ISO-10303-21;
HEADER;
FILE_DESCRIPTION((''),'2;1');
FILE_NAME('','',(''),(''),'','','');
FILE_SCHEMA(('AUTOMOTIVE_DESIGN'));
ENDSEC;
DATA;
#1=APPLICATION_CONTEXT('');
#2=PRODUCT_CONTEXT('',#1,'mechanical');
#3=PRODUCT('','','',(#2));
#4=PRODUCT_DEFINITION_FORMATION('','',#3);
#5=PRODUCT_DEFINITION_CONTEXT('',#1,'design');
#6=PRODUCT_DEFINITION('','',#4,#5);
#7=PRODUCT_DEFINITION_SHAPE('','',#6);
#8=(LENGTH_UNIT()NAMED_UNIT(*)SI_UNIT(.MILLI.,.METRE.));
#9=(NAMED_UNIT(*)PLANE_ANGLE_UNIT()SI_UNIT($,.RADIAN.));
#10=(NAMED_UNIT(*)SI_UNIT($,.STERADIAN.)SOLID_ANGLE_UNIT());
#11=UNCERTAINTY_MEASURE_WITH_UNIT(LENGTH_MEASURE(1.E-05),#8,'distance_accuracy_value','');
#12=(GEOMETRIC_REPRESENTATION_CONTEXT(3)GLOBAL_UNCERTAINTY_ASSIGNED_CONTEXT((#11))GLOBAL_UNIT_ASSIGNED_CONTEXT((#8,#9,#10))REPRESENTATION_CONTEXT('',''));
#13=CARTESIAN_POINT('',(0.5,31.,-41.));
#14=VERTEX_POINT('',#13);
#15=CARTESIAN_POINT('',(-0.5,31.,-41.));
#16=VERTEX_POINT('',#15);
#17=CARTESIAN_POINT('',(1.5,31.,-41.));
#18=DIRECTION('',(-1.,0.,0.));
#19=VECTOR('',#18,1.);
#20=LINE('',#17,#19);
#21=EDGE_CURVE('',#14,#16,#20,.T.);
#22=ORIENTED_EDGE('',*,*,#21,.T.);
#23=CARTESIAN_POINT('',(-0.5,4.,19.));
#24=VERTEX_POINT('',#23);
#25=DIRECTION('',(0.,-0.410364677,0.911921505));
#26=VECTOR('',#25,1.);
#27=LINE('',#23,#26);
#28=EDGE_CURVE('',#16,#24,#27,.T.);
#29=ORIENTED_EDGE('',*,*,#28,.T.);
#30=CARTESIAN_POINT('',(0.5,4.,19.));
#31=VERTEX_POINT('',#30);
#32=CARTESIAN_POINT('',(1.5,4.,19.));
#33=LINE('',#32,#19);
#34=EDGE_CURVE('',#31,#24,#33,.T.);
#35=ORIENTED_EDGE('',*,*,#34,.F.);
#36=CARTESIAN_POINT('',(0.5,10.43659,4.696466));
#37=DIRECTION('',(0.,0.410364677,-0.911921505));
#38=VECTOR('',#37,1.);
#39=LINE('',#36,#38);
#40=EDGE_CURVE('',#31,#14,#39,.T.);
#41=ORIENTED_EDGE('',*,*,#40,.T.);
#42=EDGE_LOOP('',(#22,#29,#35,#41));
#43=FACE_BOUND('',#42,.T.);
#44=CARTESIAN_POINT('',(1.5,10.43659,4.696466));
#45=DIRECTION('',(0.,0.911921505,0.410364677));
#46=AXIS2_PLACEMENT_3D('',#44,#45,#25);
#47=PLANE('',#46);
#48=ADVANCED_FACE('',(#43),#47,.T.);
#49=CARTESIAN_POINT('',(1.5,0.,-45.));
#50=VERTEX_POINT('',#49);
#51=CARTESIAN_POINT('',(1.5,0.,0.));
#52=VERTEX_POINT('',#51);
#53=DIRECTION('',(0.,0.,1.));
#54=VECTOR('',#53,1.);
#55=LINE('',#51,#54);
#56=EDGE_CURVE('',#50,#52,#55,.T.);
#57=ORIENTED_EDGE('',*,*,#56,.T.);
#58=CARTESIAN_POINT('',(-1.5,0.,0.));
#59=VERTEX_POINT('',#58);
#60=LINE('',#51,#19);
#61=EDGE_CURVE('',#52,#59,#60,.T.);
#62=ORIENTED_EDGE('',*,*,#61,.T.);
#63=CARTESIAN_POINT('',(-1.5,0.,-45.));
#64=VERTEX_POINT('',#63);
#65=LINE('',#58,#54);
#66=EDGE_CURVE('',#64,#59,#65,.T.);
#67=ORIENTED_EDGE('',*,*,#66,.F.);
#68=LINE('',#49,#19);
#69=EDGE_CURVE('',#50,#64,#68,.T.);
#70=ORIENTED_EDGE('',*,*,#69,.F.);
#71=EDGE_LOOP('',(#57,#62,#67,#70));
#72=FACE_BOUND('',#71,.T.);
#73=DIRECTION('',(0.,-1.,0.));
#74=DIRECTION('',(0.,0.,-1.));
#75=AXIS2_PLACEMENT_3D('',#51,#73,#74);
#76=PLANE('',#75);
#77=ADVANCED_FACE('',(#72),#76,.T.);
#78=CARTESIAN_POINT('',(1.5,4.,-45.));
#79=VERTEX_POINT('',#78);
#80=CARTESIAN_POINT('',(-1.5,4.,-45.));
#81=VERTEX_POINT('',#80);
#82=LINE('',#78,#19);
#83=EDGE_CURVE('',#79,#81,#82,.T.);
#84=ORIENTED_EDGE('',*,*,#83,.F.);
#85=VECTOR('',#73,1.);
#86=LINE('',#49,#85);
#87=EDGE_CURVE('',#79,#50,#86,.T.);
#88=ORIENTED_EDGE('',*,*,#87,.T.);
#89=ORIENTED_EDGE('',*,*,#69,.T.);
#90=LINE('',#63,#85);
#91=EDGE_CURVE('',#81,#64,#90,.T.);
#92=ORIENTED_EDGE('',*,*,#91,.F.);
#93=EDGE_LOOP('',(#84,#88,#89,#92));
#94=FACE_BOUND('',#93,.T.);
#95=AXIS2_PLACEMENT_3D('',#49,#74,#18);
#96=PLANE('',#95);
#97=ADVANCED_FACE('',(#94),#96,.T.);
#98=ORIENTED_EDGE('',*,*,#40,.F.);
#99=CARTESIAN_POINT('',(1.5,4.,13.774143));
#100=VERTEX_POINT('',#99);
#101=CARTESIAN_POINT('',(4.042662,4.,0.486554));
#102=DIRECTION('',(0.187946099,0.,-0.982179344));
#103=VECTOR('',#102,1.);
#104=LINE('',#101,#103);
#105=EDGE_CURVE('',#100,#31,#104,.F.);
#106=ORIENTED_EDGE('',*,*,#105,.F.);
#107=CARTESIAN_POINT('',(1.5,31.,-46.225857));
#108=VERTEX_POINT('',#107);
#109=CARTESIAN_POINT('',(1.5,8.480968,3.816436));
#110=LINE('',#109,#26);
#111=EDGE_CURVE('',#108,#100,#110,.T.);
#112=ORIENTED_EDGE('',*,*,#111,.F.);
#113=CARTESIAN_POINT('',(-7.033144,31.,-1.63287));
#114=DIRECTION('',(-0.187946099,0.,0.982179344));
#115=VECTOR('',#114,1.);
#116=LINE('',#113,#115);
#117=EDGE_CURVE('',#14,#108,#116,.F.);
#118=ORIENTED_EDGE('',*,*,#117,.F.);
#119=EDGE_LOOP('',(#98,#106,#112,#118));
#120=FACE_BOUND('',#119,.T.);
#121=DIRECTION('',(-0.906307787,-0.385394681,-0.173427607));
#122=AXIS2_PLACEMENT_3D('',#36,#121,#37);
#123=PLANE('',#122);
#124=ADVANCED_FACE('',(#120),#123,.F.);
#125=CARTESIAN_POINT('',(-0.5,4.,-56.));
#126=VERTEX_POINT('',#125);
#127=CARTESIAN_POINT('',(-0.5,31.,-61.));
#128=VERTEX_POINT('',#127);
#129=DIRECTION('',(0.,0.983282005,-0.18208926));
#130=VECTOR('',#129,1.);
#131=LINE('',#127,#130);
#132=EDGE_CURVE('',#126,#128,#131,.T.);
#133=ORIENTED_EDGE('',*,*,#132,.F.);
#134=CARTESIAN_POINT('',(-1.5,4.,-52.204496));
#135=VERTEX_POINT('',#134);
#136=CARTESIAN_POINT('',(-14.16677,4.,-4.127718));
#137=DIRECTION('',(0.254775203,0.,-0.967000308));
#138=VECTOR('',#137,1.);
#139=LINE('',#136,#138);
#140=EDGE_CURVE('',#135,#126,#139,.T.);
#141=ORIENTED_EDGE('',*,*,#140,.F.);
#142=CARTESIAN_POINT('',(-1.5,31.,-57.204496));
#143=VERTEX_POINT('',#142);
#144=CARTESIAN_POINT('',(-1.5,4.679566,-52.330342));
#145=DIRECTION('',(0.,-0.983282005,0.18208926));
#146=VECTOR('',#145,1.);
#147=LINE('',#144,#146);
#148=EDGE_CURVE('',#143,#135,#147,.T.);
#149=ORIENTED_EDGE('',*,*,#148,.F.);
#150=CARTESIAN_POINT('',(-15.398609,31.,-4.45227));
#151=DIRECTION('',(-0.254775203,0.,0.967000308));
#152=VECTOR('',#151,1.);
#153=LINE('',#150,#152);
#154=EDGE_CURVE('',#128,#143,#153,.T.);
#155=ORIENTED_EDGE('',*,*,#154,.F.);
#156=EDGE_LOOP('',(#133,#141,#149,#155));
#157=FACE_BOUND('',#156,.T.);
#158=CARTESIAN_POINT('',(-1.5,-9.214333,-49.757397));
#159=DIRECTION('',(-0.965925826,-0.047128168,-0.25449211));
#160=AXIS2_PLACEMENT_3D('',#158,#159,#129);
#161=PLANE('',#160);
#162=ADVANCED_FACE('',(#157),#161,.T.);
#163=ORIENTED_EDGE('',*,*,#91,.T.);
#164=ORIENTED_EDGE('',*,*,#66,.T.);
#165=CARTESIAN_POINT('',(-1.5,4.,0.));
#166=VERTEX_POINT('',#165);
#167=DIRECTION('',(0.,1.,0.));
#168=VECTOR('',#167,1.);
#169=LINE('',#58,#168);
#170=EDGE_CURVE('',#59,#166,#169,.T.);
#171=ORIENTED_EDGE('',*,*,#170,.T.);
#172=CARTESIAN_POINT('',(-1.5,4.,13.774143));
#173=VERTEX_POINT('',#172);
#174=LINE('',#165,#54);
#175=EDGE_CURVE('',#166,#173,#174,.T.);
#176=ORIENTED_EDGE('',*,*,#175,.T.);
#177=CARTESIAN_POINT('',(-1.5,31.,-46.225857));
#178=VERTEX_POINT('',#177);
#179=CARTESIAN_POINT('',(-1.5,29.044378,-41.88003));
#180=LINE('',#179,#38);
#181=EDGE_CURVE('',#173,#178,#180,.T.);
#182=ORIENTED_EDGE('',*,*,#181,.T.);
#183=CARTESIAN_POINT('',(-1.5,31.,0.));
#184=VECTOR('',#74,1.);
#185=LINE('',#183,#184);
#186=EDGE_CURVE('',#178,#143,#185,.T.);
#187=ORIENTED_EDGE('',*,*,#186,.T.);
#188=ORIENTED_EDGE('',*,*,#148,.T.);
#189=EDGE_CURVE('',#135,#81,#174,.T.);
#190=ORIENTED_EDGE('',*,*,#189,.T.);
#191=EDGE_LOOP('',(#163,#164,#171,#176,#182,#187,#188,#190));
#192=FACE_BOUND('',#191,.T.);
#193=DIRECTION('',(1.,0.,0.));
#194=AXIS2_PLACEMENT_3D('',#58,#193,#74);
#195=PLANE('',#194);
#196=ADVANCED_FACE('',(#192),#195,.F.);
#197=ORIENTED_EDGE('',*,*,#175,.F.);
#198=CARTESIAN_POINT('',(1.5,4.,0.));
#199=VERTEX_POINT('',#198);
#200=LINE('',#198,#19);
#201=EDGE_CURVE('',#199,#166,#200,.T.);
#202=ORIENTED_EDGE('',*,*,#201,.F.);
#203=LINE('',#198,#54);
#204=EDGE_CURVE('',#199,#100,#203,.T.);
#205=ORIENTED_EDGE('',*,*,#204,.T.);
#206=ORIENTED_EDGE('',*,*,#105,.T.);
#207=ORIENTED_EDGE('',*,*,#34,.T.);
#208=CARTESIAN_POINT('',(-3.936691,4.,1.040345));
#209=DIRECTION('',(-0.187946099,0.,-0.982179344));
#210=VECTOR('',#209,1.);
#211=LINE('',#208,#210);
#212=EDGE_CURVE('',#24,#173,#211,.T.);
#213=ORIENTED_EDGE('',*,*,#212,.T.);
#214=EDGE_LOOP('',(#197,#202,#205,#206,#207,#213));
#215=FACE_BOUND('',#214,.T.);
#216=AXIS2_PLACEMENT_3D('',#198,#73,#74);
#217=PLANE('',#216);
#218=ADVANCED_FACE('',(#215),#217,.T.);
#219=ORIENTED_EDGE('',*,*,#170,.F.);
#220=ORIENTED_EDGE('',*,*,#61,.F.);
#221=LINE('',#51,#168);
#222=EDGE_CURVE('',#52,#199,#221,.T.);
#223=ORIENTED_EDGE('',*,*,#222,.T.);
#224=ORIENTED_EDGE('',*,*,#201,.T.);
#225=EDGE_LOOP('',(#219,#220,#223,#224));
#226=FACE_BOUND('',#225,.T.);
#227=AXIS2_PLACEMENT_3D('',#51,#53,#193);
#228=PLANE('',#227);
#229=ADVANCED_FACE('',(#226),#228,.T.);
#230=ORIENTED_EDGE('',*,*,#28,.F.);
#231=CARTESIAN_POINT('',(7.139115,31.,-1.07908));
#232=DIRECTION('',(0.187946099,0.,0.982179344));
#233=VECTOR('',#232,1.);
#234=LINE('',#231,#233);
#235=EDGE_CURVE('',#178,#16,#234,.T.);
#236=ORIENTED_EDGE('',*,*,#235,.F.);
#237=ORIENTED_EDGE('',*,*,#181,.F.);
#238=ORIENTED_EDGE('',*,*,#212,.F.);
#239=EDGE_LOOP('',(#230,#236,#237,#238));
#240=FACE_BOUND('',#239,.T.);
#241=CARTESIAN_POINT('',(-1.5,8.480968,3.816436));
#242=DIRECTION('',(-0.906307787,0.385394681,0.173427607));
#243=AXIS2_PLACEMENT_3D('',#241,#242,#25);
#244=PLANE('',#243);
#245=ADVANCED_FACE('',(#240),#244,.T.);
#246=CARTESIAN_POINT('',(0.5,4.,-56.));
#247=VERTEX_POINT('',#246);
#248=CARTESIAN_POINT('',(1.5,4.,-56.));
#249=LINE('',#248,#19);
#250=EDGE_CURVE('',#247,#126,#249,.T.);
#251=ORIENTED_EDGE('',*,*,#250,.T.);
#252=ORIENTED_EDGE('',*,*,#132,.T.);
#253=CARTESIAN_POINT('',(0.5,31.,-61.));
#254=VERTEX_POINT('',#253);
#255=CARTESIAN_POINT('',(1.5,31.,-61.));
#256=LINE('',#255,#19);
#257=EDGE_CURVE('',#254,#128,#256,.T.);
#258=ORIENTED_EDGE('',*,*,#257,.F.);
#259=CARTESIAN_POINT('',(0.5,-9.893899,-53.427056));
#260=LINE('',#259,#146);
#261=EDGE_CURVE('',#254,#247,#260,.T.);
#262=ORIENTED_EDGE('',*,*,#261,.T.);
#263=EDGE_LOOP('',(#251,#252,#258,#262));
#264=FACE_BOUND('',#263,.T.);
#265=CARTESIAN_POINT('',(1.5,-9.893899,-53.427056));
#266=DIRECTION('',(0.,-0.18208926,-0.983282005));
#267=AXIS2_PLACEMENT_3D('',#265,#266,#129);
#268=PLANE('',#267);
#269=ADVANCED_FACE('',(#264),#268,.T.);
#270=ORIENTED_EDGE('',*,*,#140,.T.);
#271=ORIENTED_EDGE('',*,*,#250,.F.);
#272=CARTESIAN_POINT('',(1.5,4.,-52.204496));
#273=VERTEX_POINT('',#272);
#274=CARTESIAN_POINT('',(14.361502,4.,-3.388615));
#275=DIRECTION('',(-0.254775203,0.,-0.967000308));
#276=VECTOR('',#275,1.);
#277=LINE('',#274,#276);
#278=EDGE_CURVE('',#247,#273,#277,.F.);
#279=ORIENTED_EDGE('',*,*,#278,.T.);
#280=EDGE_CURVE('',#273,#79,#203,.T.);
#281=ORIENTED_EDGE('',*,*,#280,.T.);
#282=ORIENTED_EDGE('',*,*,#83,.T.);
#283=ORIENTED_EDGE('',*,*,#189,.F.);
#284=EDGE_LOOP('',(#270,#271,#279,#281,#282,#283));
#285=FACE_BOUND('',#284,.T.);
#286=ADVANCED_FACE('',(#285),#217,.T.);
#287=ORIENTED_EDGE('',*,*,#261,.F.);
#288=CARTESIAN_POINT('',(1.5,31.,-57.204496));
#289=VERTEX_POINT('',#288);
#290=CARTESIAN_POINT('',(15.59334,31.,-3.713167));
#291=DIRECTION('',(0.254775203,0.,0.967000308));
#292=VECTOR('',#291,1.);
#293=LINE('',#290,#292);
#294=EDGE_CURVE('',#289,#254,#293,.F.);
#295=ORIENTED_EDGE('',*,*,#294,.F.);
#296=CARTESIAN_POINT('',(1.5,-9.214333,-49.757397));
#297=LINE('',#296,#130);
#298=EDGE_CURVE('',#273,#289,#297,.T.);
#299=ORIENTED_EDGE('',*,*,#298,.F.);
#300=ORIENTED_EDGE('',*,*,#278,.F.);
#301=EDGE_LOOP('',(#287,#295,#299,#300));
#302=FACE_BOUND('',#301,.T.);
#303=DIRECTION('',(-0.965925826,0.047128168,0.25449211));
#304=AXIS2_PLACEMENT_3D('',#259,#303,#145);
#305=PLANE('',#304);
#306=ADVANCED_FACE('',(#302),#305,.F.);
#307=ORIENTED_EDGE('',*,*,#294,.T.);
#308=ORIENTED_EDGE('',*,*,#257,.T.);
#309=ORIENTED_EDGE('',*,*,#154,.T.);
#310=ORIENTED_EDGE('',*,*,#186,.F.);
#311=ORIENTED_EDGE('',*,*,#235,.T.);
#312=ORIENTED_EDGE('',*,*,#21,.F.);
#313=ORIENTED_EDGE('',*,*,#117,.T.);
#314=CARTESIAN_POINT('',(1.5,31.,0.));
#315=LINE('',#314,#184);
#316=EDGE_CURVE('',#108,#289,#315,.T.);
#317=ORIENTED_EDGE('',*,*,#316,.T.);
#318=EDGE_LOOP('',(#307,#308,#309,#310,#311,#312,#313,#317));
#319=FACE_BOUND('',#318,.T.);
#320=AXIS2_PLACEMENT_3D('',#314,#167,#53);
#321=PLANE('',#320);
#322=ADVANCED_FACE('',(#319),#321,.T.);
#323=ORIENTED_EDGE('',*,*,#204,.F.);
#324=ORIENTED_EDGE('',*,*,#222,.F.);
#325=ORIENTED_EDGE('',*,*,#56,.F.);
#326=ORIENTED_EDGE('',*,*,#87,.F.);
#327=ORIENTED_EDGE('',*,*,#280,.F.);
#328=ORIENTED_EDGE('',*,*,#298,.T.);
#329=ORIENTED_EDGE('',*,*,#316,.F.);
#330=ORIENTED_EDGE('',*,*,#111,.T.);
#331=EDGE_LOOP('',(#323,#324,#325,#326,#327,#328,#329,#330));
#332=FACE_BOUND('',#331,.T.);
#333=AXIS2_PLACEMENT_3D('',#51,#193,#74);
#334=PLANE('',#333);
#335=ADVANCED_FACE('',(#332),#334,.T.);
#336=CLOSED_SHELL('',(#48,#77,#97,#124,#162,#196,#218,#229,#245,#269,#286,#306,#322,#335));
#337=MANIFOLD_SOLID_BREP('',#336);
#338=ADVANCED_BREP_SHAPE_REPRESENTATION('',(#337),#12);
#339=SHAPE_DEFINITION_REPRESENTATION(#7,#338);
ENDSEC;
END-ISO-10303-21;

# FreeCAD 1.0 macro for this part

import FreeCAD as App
import Part
import Sketcher
from FreeCAD import Vector


def edges_at(feature, points):
    """Names of the edges that pass closest to the given points."""
    edges = feature.Shape.Edges
    near = lambda p: min(range(len(edges)), key=lambda i: edges[i].distToShape(Part.Vertex(*p))[0])
    return sorted({f"Edge{near(p) + 1}" for p in points})


def add_polygon(sketch, points):
    """Adds a closed chain of lines whose ends are joined by coincident constraints."""
    first, n = sketch.GeometryCount, len(points)
    for a, b in zip(points, points[1:] + points[:1]):
        sketch.addGeometry(Part.LineSegment(App.Vector(*a, 0), App.Vector(*b, 0)), False)
    for i in range(n):
        sketch.addConstraint(Sketcher.Constraint("Coincident", first + i, 2, first + (i + 1) % n, 1))

doc = App.newDocument("Part")
params = doc.addObject("Spreadsheet::Sheet", "Params")
for row, (alias, value) in enumerate([
    ("sketch1_width", "4 mm"),
    ("sketch1_height", "45 mm"),
    ("sketch1_height2", "11 mm"),
    ("sketch1_height3", "20 mm"),
    ("sketch1_height4", "19 mm"),
    ("pad1_length", "3 mm"),
    ("chamfer_size", "1 mm"),
    ("chamfer_size2", "3.732051 mm"),
    ("chamfer2_size", "1 mm"),
    ("chamfer2_size2", "2.144507 mm"),
], start=1):
    params.set(f"A{row}", alias)
    params.set(f"B{row}", "=" + value)
    params.setAlias(f"B{row}", alias)

body = doc.addObject("PartDesign::Body", "Body")

sketch1 = doc.addObject("Sketcher::SketchObject", "Sketch")
body.addObject(sketch1)
sketch1.AttachmentSupport = (doc.YZ_Plane, [""])
sketch1.MapMode = "FlatFace"
add_polygon(sketch1, [(0, 0), (0, -45), (4, -45), (4, -56), (31, -61), (31, -41), (4, 19), (4, 0)])
sketch1.addConstraint([
    Sketcher.Constraint("Vertical", 0),
    Sketcher.Constraint("Horizontal", 1),
    Sketcher.Constraint("Vertical", 2),
    Sketcher.Constraint("Vertical", 4),
    Sketcher.Constraint("Vertical", 6),
    Sketcher.Constraint("Horizontal", 7),
    Sketcher.Constraint("Coincident", 7, 2, -1, 1),
    Sketcher.Constraint("Vertical", 2, 2, 5, 2),
    Sketcher.Constraint("DistanceX", 1, 1, 1, 2, 4.0),
    Sketcher.Constraint("DistanceY", 0, 2, 0, 1, 45.0),
    Sketcher.Constraint("DistanceY", 2, 2, 2, 1, 11.0),
    Sketcher.Constraint("DistanceY", 4, 1, 4, 2, 20.0),
    Sketcher.Constraint("DistanceY", 6, 2, 6, 1, 19.0),
    Sketcher.Constraint("DistanceX", -1, 1, 3, 2, 31.0),
    Sketcher.Constraint("DistanceY", 3, 2, -1, 1, 61.0),
])
sketch1.setExpression("Constraints[16]", "Params.sketch1_width")
sketch1.setExpression("Constraints[17]", "Params.sketch1_height")
sketch1.setExpression("Constraints[18]", "Params.sketch1_height2")
sketch1.setExpression("Constraints[19]", "Params.sketch1_height3")
sketch1.setExpression("Constraints[20]", "Params.sketch1_height4")
pad1 = doc.addObject("PartDesign::Pad", "Pad")
body.addObject(pad1)
pad1.Profile = sketch1
pad1.setExpression("Length", "Params.pad1_length")
pad1.Midplane = True
doc.recompute()

chamfer = doc.addObject("PartDesign::Chamfer", "Chamfer")
body.addObject(chamfer)
chamfer.Base = (pad1, edges_at(pad1, [(-1.5, 17.5, -58.5), (1.5, 17.5, -58.5)]))
chamfer.ChamferType = "Two distances"
chamfer.setExpression("Size", "Params.chamfer_size")
chamfer.setExpression("Size2", "Params.chamfer_size2")
doc.recompute()

chamfer2 = doc.addObject("PartDesign::Chamfer", "Chamfer001")
body.addObject(chamfer2)
chamfer2.Base = (chamfer, edges_at(chamfer, [(-1.5, 17.5, -11), (1.5, 17.5, -11)]))
chamfer2.ChamferType = "Two distances"
chamfer2.setExpression("Size", "Params.chamfer2_size")
chamfer2.setExpression("Size2", "Params.chamfer2_size2")
chamfer2.FlipDirection = True

doc.recompute()
